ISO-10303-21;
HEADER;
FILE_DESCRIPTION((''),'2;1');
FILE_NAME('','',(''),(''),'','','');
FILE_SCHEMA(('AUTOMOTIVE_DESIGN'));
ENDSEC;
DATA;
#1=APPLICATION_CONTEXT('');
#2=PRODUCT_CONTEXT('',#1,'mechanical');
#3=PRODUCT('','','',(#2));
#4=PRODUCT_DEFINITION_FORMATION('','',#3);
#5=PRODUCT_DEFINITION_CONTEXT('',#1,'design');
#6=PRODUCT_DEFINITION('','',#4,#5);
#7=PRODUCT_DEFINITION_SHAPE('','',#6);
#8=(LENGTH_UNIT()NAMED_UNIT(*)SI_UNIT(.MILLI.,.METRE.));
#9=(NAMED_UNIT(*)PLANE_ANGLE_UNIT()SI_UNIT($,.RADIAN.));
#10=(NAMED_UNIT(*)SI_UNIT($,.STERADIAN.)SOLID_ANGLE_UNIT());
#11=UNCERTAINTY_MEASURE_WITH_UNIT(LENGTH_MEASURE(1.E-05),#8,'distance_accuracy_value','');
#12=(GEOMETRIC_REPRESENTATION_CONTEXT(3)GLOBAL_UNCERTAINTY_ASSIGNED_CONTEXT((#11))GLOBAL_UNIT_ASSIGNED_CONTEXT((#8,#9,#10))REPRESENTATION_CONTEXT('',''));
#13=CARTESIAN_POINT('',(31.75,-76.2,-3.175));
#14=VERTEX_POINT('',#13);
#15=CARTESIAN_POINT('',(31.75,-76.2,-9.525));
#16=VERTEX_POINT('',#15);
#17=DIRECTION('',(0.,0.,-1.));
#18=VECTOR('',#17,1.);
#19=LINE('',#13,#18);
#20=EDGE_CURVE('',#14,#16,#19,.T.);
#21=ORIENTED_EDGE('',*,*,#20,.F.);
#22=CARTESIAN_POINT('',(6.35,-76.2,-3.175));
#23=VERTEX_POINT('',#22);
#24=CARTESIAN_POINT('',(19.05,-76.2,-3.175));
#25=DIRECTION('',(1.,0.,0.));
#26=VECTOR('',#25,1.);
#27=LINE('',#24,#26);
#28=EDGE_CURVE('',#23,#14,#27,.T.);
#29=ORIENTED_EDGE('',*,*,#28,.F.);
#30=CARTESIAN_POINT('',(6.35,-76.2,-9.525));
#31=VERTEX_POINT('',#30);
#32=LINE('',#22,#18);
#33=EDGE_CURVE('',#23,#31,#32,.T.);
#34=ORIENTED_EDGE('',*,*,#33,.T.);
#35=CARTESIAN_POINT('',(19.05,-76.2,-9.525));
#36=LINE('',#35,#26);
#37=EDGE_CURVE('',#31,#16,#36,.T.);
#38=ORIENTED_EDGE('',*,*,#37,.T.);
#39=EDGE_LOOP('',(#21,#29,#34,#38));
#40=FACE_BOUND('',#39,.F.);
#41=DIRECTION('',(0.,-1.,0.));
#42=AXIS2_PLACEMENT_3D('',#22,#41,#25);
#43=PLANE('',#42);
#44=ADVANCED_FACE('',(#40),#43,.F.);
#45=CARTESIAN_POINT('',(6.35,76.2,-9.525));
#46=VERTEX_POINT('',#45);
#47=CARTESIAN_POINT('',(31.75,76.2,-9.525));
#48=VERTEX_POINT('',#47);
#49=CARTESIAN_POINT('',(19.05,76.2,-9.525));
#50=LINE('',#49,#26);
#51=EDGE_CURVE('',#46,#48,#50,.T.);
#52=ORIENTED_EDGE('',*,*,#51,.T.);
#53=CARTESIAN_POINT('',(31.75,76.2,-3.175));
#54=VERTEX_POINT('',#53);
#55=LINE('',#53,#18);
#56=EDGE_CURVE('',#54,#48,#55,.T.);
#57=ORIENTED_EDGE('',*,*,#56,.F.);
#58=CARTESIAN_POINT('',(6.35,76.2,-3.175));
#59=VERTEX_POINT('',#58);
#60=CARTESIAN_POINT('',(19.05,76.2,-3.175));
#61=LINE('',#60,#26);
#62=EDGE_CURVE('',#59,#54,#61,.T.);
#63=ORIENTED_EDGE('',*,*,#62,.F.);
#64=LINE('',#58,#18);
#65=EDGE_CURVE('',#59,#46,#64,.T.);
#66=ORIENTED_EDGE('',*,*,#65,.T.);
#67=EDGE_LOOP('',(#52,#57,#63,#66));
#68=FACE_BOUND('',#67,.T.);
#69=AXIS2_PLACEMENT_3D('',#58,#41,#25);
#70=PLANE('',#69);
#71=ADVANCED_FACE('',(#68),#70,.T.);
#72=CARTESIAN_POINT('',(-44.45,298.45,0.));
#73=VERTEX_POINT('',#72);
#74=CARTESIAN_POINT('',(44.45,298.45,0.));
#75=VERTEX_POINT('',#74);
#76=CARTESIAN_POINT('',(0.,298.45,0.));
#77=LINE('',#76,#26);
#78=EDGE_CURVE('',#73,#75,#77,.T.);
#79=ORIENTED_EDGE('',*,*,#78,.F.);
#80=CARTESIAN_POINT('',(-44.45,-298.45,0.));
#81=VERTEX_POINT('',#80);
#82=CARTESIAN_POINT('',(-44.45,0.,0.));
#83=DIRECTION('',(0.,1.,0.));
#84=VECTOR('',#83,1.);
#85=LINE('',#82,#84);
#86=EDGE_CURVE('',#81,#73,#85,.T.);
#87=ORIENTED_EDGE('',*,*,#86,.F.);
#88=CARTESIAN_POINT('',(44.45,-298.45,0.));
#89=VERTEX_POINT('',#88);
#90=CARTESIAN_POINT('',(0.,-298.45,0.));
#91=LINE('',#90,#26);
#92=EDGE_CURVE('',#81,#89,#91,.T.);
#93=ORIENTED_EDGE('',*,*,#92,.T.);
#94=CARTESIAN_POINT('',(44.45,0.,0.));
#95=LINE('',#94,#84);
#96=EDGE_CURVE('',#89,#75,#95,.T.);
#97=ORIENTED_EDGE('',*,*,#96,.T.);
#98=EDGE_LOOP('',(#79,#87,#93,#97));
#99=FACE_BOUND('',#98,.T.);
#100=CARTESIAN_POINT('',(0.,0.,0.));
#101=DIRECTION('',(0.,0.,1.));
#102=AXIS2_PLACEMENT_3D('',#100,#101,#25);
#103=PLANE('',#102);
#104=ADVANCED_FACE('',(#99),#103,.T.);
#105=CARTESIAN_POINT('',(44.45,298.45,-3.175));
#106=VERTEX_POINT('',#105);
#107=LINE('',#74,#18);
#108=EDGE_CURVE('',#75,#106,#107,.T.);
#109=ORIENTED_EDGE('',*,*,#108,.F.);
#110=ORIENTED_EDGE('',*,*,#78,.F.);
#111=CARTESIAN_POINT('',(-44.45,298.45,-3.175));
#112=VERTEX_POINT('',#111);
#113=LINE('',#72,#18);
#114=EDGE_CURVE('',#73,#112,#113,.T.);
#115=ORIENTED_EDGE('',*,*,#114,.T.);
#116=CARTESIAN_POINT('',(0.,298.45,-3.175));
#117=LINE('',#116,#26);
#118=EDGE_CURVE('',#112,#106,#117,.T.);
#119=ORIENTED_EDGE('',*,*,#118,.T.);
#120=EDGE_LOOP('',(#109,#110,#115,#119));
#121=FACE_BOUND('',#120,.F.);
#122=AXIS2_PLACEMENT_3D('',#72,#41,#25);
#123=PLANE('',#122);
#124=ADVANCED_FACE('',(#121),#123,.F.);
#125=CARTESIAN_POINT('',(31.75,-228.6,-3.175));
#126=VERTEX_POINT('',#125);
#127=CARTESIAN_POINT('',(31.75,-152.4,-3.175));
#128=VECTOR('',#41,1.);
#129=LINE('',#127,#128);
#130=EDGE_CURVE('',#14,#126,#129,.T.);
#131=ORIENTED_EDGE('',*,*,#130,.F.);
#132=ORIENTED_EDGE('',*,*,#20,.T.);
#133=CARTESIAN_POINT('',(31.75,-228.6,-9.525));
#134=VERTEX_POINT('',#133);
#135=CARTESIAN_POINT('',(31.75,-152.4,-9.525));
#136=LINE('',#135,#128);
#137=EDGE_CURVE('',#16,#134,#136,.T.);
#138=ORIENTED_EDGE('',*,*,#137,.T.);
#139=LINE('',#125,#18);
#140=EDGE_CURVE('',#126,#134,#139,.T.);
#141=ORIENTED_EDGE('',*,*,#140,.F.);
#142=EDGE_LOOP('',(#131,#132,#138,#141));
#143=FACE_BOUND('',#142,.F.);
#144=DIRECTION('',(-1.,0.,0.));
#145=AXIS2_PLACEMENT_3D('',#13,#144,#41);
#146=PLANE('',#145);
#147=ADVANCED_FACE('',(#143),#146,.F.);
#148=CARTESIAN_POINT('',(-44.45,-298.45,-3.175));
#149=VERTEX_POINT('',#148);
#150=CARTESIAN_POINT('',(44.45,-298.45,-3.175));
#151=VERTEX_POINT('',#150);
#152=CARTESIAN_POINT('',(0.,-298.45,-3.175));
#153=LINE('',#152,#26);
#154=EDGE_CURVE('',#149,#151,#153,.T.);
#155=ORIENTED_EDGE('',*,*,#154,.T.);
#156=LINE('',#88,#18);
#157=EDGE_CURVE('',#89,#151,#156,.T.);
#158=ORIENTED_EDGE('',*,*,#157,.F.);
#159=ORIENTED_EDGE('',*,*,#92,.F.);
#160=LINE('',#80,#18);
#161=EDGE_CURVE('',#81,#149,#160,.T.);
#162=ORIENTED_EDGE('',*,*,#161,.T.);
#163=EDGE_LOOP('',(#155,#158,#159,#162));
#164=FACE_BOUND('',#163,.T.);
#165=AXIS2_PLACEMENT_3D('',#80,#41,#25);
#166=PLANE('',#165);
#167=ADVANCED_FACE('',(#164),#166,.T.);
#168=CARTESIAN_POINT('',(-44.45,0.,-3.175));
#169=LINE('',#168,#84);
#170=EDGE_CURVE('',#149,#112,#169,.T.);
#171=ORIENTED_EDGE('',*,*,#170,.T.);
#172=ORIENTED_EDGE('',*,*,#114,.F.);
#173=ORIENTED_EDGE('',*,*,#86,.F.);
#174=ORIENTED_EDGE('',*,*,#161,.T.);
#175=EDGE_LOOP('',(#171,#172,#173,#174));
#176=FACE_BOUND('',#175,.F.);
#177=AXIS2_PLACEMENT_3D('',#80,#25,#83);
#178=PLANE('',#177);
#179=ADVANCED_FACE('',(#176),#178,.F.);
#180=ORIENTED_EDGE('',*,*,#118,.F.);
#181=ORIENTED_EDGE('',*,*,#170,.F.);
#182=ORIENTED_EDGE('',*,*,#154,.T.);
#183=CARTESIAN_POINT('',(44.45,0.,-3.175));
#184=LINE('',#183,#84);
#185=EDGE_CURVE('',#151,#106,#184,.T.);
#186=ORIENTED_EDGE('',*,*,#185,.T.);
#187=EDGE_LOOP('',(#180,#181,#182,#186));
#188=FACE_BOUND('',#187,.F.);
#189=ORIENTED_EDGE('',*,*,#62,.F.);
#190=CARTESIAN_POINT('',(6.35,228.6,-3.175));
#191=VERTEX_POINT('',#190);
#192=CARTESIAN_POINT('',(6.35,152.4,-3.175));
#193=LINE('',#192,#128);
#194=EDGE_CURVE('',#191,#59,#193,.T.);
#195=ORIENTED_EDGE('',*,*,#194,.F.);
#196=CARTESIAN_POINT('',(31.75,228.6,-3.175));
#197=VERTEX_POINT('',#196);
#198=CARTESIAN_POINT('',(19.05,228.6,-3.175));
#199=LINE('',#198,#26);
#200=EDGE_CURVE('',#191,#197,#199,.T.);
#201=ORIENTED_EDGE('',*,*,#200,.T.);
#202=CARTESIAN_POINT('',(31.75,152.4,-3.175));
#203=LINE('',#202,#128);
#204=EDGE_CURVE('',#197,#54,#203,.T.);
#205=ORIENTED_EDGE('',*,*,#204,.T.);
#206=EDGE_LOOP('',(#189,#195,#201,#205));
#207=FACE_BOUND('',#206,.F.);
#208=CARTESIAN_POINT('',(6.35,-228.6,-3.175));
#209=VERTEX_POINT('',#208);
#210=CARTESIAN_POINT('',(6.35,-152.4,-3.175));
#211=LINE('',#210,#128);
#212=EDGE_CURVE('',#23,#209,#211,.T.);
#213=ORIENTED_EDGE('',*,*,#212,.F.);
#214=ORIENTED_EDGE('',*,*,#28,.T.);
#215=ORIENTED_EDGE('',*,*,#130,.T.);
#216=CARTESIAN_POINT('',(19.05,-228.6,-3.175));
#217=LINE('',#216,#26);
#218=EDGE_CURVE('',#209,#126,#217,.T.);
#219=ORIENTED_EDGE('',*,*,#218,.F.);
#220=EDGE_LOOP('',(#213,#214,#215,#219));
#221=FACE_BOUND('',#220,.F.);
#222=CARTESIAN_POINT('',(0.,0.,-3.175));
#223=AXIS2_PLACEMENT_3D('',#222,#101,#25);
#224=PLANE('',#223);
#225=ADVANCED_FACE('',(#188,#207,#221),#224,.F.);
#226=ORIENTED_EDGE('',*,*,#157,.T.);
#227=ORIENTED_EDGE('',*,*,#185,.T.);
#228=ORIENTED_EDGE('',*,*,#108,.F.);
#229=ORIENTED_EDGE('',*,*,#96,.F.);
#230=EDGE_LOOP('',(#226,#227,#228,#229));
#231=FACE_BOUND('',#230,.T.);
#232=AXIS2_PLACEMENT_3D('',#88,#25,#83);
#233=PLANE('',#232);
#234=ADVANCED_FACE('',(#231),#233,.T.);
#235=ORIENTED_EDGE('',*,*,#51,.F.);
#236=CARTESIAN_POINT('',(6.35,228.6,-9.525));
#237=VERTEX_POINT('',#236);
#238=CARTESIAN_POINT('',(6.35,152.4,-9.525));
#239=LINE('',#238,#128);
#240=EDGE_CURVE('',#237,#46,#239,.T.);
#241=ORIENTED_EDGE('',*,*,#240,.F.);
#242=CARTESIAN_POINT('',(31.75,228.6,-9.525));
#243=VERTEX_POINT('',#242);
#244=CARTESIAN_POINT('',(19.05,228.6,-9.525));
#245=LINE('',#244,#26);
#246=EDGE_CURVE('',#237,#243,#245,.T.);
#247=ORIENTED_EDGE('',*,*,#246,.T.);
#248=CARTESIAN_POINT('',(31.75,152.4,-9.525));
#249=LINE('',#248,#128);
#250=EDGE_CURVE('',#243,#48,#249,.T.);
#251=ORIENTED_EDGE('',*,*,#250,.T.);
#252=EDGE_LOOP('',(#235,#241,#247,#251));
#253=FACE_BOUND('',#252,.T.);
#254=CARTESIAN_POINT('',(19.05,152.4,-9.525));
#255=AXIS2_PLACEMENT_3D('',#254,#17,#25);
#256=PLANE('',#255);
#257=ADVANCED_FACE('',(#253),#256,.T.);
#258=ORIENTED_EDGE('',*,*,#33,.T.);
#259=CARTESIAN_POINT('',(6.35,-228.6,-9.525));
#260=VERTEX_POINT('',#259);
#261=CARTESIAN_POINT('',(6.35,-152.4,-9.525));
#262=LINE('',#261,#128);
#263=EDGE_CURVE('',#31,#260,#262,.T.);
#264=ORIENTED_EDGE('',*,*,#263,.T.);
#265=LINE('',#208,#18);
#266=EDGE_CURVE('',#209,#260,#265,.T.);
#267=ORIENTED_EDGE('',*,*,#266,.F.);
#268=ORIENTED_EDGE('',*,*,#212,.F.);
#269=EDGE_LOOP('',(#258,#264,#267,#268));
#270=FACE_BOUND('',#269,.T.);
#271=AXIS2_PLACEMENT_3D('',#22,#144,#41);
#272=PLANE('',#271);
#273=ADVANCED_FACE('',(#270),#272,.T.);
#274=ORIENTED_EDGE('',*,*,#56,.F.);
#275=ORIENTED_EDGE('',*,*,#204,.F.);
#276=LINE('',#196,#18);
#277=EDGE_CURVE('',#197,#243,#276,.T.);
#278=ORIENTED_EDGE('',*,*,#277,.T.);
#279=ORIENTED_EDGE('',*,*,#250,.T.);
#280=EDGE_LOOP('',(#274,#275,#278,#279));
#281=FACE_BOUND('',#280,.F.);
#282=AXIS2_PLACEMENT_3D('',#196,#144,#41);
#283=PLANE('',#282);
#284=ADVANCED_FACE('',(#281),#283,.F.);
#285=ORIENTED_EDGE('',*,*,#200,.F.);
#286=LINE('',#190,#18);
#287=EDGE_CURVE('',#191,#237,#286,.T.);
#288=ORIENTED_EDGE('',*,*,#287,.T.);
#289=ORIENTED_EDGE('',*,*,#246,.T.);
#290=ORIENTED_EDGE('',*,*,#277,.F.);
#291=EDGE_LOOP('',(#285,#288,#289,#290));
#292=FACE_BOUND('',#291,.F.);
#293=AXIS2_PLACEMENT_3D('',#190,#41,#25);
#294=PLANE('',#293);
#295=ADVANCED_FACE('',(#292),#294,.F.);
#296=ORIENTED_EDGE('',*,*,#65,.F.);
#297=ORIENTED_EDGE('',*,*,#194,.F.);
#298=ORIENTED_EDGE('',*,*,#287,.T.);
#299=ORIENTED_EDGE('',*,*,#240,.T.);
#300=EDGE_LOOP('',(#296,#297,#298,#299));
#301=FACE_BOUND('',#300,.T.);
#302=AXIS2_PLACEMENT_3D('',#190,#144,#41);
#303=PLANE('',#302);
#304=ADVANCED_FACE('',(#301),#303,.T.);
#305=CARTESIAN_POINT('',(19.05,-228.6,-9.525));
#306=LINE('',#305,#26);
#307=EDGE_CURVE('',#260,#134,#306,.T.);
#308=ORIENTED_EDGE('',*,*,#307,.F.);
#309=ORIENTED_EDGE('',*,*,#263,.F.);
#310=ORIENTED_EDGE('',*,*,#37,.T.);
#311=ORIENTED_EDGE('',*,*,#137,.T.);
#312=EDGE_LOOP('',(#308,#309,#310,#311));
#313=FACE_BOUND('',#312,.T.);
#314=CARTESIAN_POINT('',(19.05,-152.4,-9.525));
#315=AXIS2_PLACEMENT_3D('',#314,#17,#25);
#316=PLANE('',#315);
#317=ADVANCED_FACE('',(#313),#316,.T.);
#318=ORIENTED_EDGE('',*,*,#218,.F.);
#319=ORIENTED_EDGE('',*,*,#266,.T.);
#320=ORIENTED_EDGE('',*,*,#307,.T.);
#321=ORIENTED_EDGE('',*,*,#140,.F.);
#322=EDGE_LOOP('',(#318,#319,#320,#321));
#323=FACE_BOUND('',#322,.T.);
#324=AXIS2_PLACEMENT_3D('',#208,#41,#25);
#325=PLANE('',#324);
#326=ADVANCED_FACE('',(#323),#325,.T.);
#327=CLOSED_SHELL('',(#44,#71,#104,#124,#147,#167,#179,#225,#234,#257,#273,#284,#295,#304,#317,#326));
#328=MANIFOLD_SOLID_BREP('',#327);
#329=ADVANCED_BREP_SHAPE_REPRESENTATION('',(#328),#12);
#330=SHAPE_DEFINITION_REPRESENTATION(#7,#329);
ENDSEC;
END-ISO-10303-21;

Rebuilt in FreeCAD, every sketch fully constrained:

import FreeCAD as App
import Part
import Sketcher
Q = App.Units.Quantity

doc = App.newDocument("Part")
body = doc.addObject("PartDesign::Body", "Body")

sketch1 = body.newObject("Sketcher::SketchObject", "Sketch")
sketch1.AttachmentSupport = (doc.getObject("XY_Plane"), [""])
sketch1.MapMode = "FlatFace"
sketch1.addGeometry([
    Part.LineSegment(App.Vector(-44, 298, 0), App.Vector(-44, -298, 0)),
    Part.LineSegment(App.Vector(-44, -298, 0), App.Vector(44, -298, 0)),
    Part.LineSegment(App.Vector(44, -298, 0), App.Vector(44, 298, 0)),
    Part.LineSegment(App.Vector(44, 298, 0), App.Vector(-44, 298, 0)),
], False)
sketch1.addConstraint([
    Sketcher.Constraint("Coincident", 0, 2, 1, 1),
    Sketcher.Constraint("Coincident", 1, 2, 2, 1),
    Sketcher.Constraint("Coincident", 2, 2, 3, 1),
    Sketcher.Constraint("Coincident", 3, 2, 0, 1),
    Sketcher.Constraint("Vertical", 0),
    Sketcher.Constraint("Horizontal", 1),
    Sketcher.Constraint("Vertical", 2),
    Sketcher.Constraint("Horizontal", 3),
    Sketcher.Constraint("Symmetric", 0, 2, 2, 2, -1, 1),
    Sketcher.Constraint("DistanceX", 1, 1, 1, 2, Q("3.5 in")),
    Sketcher.Constraint("DistanceY", 0, 2, 0, 1, Q("23.5 in")),
])
pad1 = body.newObject("PartDesign::Pad", "Pad")
pad1.Profile = sketch1
pad1.Length = Q("0.125 in")
pad1.Reversed = True

sketch2 = body.newObject("Sketcher::SketchObject", "Sketch001")
sketch2.AttachmentSupport = (doc.getObject("XY_Plane"), [""])
sketch2.MapMode = "FlatFace"
sketch2.AttachmentOffset = App.Placement(App.Vector(0, 0, -0.125 * 25.4), App.Rotation())
sketch2.addGeometry([
    Part.LineSegment(App.Vector(6, -229, 0), App.Vector(6, -76, 0)),
    Part.LineSegment(App.Vector(6, -76, 0), App.Vector(32, -76, 0)),
    Part.LineSegment(App.Vector(32, -76, 0), App.Vector(32, -229, 0)),
    Part.LineSegment(App.Vector(32, -229, 0), App.Vector(6, -229, 0)),
    Part.LineSegment(App.Vector(6, 76, 0), App.Vector(6, 229, 0)),
    Part.LineSegment(App.Vector(6, 229, 0), App.Vector(32, 229, 0)),
    Part.LineSegment(App.Vector(32, 229, 0), App.Vector(32, 76, 0)),
    Part.LineSegment(App.Vector(32, 76, 0), App.Vector(6, 76, 0)),
], False)
sketch2.addConstraint([
    Sketcher.Constraint("Coincident", 0, 2, 1, 1),
    Sketcher.Constraint("Coincident", 1, 2, 2, 1),
    Sketcher.Constraint("Coincident", 2, 2, 3, 1),
    Sketcher.Constraint("Coincident", 3, 2, 0, 1),
    Sketcher.Constraint("Coincident", 4, 2, 5, 1),
    Sketcher.Constraint("Coincident", 5, 2, 6, 1),
    Sketcher.Constraint("Coincident", 6, 2, 7, 1),
    Sketcher.Constraint("Coincident", 7, 2, 4, 1),
    Sketcher.Constraint("Vertical", 0),
    Sketcher.Constraint("Horizontal", 1),
    Sketcher.Constraint("Vertical", 2),
    Sketcher.Constraint("Horizontal", 3),
    Sketcher.Constraint("Vertical", 4),
    Sketcher.Constraint("Horizontal", 5),
    Sketcher.Constraint("Vertical", 6),
    Sketcher.Constraint("Horizontal", 7),
    Sketcher.Constraint("Symmetric", 3, 2, 4, 2, -1),
    Sketcher.Constraint("Symmetric", 1, 2, 6, 2, -1),
    Sketcher.Constraint("DistanceX", 1, 1, 1, 2, Q("1 in")),
    Sketcher.Constraint("DistanceY", 0, 1, 0, 2, Q("6 in")),
    Sketcher.Constraint("DistanceY", 0, 2, -1, 1, Q("3 in")),
    Sketcher.Constraint("DistanceX", -1, 1, 0, 2, Q("0.25 in")),
])
pad2 = body.newObject("PartDesign::Pad", "Pad001")
pad2.Profile = sketch2
pad2.Length = Q("0.25 in")
pad2.Reversed = True

doc.recompute()
